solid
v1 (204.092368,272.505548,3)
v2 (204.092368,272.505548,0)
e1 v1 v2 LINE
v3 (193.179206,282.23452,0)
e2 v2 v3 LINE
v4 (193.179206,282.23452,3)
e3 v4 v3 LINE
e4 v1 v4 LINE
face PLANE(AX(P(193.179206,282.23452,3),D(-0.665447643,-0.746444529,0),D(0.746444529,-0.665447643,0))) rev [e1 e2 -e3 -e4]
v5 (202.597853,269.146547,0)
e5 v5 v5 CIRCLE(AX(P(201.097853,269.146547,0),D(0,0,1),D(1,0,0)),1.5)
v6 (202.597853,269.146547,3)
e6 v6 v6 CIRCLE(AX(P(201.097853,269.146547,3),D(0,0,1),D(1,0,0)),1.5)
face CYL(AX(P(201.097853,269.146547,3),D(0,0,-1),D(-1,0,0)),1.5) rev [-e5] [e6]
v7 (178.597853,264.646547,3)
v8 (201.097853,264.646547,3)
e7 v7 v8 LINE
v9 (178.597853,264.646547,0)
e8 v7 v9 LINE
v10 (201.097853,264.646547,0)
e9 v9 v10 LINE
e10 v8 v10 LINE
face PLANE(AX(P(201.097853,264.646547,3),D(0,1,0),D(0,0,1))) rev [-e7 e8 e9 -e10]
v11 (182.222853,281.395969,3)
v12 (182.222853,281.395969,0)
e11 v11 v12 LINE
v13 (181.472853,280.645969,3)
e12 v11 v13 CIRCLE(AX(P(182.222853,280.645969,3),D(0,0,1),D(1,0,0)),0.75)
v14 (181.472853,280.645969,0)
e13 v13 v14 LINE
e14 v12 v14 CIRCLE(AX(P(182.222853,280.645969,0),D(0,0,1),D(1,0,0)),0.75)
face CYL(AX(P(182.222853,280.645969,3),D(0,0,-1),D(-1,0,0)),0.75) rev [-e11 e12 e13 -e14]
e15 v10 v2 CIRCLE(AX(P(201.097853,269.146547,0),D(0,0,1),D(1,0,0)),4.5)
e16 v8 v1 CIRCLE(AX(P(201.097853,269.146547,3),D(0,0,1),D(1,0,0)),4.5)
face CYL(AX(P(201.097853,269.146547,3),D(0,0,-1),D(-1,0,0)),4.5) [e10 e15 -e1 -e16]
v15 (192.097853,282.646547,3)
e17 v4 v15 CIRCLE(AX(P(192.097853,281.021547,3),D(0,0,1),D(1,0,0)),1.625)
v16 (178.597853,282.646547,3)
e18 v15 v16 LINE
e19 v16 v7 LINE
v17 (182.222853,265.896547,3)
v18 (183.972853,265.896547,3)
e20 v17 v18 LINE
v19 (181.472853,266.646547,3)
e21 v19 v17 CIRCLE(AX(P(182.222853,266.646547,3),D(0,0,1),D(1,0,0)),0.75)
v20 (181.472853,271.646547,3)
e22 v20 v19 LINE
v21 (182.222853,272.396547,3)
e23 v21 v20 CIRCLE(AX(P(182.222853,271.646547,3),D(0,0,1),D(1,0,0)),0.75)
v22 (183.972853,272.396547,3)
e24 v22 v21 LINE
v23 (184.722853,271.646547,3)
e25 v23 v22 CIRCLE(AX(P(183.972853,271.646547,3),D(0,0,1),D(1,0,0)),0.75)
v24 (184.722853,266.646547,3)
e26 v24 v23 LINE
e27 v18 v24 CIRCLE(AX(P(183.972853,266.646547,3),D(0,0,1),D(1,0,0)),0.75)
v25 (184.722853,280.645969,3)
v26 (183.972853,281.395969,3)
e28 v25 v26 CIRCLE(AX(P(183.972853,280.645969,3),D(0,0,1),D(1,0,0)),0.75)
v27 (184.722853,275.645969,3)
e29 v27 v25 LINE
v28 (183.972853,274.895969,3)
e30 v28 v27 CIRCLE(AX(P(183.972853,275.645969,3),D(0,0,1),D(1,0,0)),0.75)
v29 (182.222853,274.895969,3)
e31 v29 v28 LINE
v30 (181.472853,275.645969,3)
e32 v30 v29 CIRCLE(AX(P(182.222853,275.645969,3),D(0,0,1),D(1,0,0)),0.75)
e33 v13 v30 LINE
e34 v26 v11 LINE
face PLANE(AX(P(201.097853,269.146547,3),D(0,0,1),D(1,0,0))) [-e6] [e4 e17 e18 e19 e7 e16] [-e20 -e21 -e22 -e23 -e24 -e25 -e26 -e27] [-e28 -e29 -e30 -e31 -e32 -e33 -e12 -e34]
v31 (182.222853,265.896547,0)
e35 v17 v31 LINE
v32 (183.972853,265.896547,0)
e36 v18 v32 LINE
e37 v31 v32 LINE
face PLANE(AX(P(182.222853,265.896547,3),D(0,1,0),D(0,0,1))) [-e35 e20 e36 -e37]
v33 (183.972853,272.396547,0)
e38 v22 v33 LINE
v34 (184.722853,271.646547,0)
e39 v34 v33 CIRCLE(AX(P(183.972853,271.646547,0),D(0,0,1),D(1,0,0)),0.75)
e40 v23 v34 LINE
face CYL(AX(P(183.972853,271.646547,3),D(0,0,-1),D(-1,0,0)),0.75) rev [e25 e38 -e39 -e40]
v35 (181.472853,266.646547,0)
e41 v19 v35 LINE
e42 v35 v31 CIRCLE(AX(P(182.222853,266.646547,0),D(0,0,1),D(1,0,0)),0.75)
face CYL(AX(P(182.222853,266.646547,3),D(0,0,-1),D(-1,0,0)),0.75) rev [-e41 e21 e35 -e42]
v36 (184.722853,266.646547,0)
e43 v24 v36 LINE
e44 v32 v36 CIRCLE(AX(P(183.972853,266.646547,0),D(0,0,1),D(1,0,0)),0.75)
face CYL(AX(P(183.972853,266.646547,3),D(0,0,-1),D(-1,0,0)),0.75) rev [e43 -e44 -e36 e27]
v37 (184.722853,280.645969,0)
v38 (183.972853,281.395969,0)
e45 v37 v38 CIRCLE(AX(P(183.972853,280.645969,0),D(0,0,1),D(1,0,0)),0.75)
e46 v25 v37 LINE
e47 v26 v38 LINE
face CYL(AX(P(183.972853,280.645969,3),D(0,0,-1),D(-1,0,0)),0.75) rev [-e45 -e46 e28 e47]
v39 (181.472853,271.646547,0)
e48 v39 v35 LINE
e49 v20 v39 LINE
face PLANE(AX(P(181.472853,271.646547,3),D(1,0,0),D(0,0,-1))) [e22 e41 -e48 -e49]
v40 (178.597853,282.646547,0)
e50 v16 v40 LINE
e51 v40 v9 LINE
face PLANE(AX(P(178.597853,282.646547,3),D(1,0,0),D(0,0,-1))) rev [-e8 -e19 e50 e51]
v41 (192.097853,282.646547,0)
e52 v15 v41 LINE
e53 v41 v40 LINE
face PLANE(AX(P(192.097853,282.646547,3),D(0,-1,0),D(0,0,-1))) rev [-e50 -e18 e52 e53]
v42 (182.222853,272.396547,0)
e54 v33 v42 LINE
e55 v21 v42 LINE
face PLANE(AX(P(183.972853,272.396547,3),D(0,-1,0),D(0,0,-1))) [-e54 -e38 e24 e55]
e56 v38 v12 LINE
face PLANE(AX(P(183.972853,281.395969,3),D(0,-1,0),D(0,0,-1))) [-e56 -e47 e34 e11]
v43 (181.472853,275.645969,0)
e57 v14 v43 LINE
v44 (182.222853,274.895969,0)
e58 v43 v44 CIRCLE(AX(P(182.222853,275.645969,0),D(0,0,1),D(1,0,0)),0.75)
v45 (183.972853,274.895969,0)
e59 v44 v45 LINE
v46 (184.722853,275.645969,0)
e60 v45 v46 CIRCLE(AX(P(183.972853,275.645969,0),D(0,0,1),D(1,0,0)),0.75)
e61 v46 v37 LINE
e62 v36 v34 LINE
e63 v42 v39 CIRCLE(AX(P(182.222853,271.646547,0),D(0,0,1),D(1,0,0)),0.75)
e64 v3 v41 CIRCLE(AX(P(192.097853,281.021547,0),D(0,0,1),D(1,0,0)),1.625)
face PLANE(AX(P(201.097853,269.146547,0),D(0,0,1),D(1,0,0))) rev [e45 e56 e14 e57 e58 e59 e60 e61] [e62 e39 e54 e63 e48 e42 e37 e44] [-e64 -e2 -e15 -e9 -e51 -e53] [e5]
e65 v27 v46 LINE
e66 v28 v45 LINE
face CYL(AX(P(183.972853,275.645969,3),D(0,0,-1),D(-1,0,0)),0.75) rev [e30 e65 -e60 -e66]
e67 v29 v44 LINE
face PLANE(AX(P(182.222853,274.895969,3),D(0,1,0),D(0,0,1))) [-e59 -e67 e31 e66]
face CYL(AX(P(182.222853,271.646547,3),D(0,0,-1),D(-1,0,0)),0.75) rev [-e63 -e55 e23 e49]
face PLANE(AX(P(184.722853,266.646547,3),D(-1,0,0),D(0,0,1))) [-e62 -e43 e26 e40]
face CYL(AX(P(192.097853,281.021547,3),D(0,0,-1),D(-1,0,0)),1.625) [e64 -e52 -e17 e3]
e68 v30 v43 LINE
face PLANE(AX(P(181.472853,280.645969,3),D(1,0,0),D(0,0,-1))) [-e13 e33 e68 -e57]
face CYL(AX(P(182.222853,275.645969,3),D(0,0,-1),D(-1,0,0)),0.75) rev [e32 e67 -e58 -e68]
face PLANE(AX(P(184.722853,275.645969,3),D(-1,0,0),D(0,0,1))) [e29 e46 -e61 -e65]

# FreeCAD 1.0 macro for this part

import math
import FreeCAD as App
import Part
import Sketcher

doc = App.newDocument("Part")
body = doc.addObject("PartDesign::Body", "Body")

# Sketch on XY plane
sketch1 = doc.addObject("Sketcher::SketchObject", "Sketch")
body.addObject(sketch1)
sketch1.AttachmentSupport = (doc.XY_Plane, [""])
sketch1.MapMode = "FlatFace"
sketch1.addGeometry([
    Part.LineSegment(App.Vector(178.6, 264.6, 0), App.Vector(201.1, 264.6, 0)),  # 0
    Part.ArcOfCircle(Part.Circle(App.Vector(201.1, 269.1, 0), App.Vector(0, 0, 1), 4.5), math.radians(-90), math.radians(48)),  # 1
    Part.LineSegment(App.Vector(204.1, 272.5, 0), App.Vector(193.2, 282.2, 0)),  # 2
    Part.ArcOfCircle(Part.Circle(App.Vector(192.1, 281, 0), App.Vector(0, 0, 1), 1.6), math.radians(48), math.radians(90)),  # 3
    Part.LineSegment(App.Vector(192.1, 282.6, 0), App.Vector(178.6, 282.6, 0)),  # 4
    Part.LineSegment(App.Vector(178.6, 282.6, 0), App.Vector(178.6, 264.6, 0)),  # 5
    Part.Circle(App.Vector(201.1, 269.1, 0), App.Vector(0, 0, 1), 1.5),  # 6
    Part.ArcOfCircle(Part.Circle(App.Vector(182.2, 266.6, 0), App.Vector(0, 0, 1), 0.8), math.radians(180), math.radians(270)),  # 7
    Part.LineSegment(App.Vector(181.5, 266.6, 0), App.Vector(181.5, 271.6, 0)),  # 8
    Part.ArcOfCircle(Part.Circle(App.Vector(182.2, 271.6, 0), App.Vector(0, 0, 1), 0.8), math.radians(90), math.radians(180)),  # 9
    Part.LineSegment(App.Vector(182.2, 272.4, 0), App.Vector(184, 272.4, 0)),  # 10
    Part.ArcOfCircle(Part.Circle(App.Vector(184, 271.6, 0), App.Vector(0, 0, 1), 0.8), math.radians(0), math.radians(90)),  # 11
    Part.LineSegment(App.Vector(184.7, 271.6, 0), App.Vector(184.7, 266.6, 0)),  # 12
    Part.ArcOfCircle(Part.Circle(App.Vector(184, 266.6, 0), App.Vector(0, 0, 1), 0.8), math.radians(-90), math.radians(0)),  # 13
    Part.LineSegment(App.Vector(184, 265.9, 0), App.Vector(182.2, 265.9, 0)),  # 14
    Part.ArcOfCircle(Part.Circle(App.Vector(182.2, 275.6, 0), App.Vector(0, 0, 1), 0.8), math.radians(180), math.radians(270)),  # 15
    Part.LineSegment(App.Vector(181.5, 275.6, 0), App.Vector(181.5, 280.6, 0)),  # 16
    Part.ArcOfCircle(Part.Circle(App.Vector(182.2, 280.6, 0), App.Vector(0, 0, 1), 0.8), math.radians(90), math.radians(180)),  # 17
    Part.LineSegment(App.Vector(182.2, 281.4, 0), App.Vector(184, 281.4, 0)),  # 18
    Part.ArcOfCircle(Part.Circle(App.Vector(184, 280.6, 0), App.Vector(0, 0, 1), 0.8), math.radians(0), math.radians(90)),  # 19
    Part.LineSegment(App.Vector(184.7, 280.6, 0), App.Vector(184.7, 275.6, 0)),  # 20
    Part.ArcOfCircle(Part.Circle(App.Vector(184, 275.6, 0), App.Vector(0, 0, 1), 0.8), math.radians(-90), math.radians(0)),  # 21
    Part.LineSegment(App.Vector(184, 274.9, 0), App.Vector(182.2, 274.9, 0)),  # 22
], False)
sketch1.addConstraint([
    Sketcher.Constraint("Tangent", 0, 2, 1, 1),
    Sketcher.Constraint("Tangent", 1, 2, 2, 1),
    Sketcher.Constraint("Tangent", 2, 2, 3, 1),
    Sketcher.Constraint("Tangent", 3, 2, 4, 1),
    Sketcher.Constraint("Coincident", 4, 2, 5, 1),
    Sketcher.Constraint("Coincident", 5, 2, 0, 1),
    Sketcher.Constraint("Tangent", 7, 1, 8, 1),
    Sketcher.Constraint("Tangent", 8, 2, 9, 2),
    Sketcher.Constraint("Tangent", 9, 1, 10, 1),
    Sketcher.Constraint("Tangent", 10, 2, 11, 2),
    Sketcher.Constraint("Tangent", 11, 1, 12, 1),
    Sketcher.Constraint("Tangent", 12, 2, 13, 2),
    Sketcher.Constraint("Tangent", 13, 1, 14, 1),
    Sketcher.Constraint("Tangent", 14, 2, 7, 2),
    Sketcher.Constraint("Tangent", 15, 1, 16, 1),
    Sketcher.Constraint("Tangent", 16, 2, 17, 2),
    Sketcher.Constraint("Tangent", 17, 1, 18, 1),
    Sketcher.Constraint("Tangent", 18, 2, 19, 2),
    Sketcher.Constraint("Tangent", 19, 1, 20, 1),
    Sketcher.Constraint("Tangent", 20, 2, 21, 2),
    Sketcher.Constraint("Tangent", 21, 1, 22, 1),
    Sketcher.Constraint("Tangent", 22, 2, 15, 2),
    Sketcher.Constraint("Horizontal", 0),
    Sketcher.Constraint("Horizontal", 4),
    Sketcher.Constraint("Vertical", 5),
    Sketcher.Constraint("Vertical", 8),
    Sketcher.Constraint("Horizontal", 10),
    Sketcher.Constraint("Vertical", 12),
    Sketcher.Constraint("Horizontal", 14),
    Sketcher.Constraint("Vertical", 16),
    Sketcher.Constraint("Horizontal", 18),
    Sketcher.Constraint("Vertical", 20),
    Sketcher.Constraint("Horizontal", 22),
    Sketcher.Constraint("Coincident", 6, 3, 1, 3),
    Sketcher.Constraint("Equal", 7, 9),
    Sketcher.Constraint("Equal", 9, 11),
    Sketcher.Constraint("Equal", 11, 13),
    Sketcher.Constraint("Equal", 13, 15),
    Sketcher.Constraint("Equal", 15, 17),
    Sketcher.Constraint("Equal", 17, 19),
    Sketcher.Constraint("Equal", 19, 21),
    Sketcher.Constraint("Vertical", 9, 3, 15, 3),
    Sketcher.Constraint("Vertical", 13, 3, 19, 3),
    Sketcher.Constraint("Equal", 12, 16),
    Sketcher.Constraint("Diameter", 6, 3.0),
    Sketcher.Constraint("Radius", 1, 4.5),
    Sketcher.Constraint("DistanceY", 5, 2, 5, 1, 18.0),
    Sketcher.Constraint("DistanceY", 8, 1, 8, 2, 5.0),
    Sketcher.Constraint("Radius", 7, 0.75),
    Sketcher.Constraint("DistanceX", 0, 1, 0, 2, 22.5),
    Sketcher.Constraint("DistanceX", 4, 2, 4, 1, 13.5),
    Sketcher.Constraint("Radius", 3, 1.625),
    Sketcher.Constraint("DistanceY", 0, 2, 13, 3, 2.0),
    Sketcher.Constraint("DistanceX", 10, 1, 10, 2, 1.75),
    Sketcher.Constraint("DistanceX", 7, 3, 3, 3, 9.875),
    Sketcher.Constraint("DistanceY", -1, 1, 15, 3, 275.645969),
    Sketcher.Constraint("DistanceY", -1, 1, 2, 2, 282.23452),
    Sketcher.Constraint("DistanceX", -1, 1, 1, 3, 201.097853),
])
pad1 = doc.addObject("PartDesign::Pad", "Pad")
body.addObject(pad1)
pad1.Profile = sketch1
pad1.Length = 3

doc.recompute()
